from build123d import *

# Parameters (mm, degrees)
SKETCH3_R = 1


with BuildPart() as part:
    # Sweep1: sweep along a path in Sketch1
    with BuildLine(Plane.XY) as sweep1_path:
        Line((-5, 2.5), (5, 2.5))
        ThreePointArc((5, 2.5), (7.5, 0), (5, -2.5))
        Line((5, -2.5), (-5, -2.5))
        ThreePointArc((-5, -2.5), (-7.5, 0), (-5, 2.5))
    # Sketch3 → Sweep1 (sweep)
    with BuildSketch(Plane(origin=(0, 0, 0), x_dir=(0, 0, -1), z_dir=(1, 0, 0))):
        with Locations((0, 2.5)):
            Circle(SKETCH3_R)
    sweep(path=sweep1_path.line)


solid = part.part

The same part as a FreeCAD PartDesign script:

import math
import FreeCAD as App
import Part
import Sketcher

V = App.Vector

doc = App.newDocument("Part")
body = doc.addObject("PartDesign::Body", "Body")

sketch1 = body.newObject("Sketcher::SketchObject", "Sketch")
sketch1.AttachmentSupport = (doc.getObject("YZ_Plane"), [""])
sketch1.MapMode = "FlatFace"
sketch1.addGeometry(Part.Circle(V(2.5, 0, 0), V(0, 0, 1), 1), False)
sketch1.addConstraint(Sketcher.Constraint("PointOnObject", 0, 3, -1))
sketch1.addConstraint(Sketcher.Constraint("Diameter", 0, 2.0))
sketch1.addConstraint(Sketcher.Constraint("DistanceX", -1, 1, 0, 3, 2.5))

sketch2 = body.newObject("Sketcher::SketchObject", "Sketch001")
sketch2.AttachmentSupport = (doc.getObject("XY_Plane"), [""])
sketch2.MapMode = "FlatFace"
sketch2.addGeometry(Part.LineSegment(V(-5, 2.5, 0), V(5, 2.5, 0)), False)
sketch2.addGeometry(Part.ArcOfCircle(Part.Circle(V(5, 0, 0), V(0, 0, 1), 2.5), math.radians(-90), math.radians(90)), False)
sketch2.addGeometry(Part.LineSegment(V(5, -2.5, 0), V(-5, -2.5, 0)), False)
sketch2.addGeometry(Part.ArcOfCircle(Part.Circle(V(-5, 0, 0), V(0, 0, 1), 2.5), math.radians(90), math.radians(270)), False)
sketch2.addConstraint(Sketcher.Constraint("Tangent", 0, 2, 1, 2))
sketch2.addConstraint(Sketcher.Constraint("Tangent", 1, 1, 2, 1))
sketch2.addConstraint(Sketcher.Constraint("Tangent", 2, 2, 3, 2))
sketch2.addConstraint(Sketcher.Constraint("Tangent", 3, 1, 0, 1))
sketch2.addConstraint(Sketcher.Constraint("Horizontal", 0))
sketch2.addConstraint(Sketcher.Constraint("Horizontal", 2))
sketch2.addConstraint(Sketcher.Constraint("Symmetric", 1, 3, 3, 3, -1, 1))
sketch2.addConstraint(Sketcher.Constraint("Radius", 1, 2.5))
sketch2.addConstraint(Sketcher.Constraint("DistanceX", 0, 1, 0, 2, 10.0))
doc.recompute()

additivepipe = body.newObject("PartDesign::AdditivePipe", "AdditivePipe")
additivepipe.Profile = sketch1
additivepipe.Spine = (sketch2, ["Edge1", "Edge2", "Edge3", "Edge4"])

doc.recompute()
